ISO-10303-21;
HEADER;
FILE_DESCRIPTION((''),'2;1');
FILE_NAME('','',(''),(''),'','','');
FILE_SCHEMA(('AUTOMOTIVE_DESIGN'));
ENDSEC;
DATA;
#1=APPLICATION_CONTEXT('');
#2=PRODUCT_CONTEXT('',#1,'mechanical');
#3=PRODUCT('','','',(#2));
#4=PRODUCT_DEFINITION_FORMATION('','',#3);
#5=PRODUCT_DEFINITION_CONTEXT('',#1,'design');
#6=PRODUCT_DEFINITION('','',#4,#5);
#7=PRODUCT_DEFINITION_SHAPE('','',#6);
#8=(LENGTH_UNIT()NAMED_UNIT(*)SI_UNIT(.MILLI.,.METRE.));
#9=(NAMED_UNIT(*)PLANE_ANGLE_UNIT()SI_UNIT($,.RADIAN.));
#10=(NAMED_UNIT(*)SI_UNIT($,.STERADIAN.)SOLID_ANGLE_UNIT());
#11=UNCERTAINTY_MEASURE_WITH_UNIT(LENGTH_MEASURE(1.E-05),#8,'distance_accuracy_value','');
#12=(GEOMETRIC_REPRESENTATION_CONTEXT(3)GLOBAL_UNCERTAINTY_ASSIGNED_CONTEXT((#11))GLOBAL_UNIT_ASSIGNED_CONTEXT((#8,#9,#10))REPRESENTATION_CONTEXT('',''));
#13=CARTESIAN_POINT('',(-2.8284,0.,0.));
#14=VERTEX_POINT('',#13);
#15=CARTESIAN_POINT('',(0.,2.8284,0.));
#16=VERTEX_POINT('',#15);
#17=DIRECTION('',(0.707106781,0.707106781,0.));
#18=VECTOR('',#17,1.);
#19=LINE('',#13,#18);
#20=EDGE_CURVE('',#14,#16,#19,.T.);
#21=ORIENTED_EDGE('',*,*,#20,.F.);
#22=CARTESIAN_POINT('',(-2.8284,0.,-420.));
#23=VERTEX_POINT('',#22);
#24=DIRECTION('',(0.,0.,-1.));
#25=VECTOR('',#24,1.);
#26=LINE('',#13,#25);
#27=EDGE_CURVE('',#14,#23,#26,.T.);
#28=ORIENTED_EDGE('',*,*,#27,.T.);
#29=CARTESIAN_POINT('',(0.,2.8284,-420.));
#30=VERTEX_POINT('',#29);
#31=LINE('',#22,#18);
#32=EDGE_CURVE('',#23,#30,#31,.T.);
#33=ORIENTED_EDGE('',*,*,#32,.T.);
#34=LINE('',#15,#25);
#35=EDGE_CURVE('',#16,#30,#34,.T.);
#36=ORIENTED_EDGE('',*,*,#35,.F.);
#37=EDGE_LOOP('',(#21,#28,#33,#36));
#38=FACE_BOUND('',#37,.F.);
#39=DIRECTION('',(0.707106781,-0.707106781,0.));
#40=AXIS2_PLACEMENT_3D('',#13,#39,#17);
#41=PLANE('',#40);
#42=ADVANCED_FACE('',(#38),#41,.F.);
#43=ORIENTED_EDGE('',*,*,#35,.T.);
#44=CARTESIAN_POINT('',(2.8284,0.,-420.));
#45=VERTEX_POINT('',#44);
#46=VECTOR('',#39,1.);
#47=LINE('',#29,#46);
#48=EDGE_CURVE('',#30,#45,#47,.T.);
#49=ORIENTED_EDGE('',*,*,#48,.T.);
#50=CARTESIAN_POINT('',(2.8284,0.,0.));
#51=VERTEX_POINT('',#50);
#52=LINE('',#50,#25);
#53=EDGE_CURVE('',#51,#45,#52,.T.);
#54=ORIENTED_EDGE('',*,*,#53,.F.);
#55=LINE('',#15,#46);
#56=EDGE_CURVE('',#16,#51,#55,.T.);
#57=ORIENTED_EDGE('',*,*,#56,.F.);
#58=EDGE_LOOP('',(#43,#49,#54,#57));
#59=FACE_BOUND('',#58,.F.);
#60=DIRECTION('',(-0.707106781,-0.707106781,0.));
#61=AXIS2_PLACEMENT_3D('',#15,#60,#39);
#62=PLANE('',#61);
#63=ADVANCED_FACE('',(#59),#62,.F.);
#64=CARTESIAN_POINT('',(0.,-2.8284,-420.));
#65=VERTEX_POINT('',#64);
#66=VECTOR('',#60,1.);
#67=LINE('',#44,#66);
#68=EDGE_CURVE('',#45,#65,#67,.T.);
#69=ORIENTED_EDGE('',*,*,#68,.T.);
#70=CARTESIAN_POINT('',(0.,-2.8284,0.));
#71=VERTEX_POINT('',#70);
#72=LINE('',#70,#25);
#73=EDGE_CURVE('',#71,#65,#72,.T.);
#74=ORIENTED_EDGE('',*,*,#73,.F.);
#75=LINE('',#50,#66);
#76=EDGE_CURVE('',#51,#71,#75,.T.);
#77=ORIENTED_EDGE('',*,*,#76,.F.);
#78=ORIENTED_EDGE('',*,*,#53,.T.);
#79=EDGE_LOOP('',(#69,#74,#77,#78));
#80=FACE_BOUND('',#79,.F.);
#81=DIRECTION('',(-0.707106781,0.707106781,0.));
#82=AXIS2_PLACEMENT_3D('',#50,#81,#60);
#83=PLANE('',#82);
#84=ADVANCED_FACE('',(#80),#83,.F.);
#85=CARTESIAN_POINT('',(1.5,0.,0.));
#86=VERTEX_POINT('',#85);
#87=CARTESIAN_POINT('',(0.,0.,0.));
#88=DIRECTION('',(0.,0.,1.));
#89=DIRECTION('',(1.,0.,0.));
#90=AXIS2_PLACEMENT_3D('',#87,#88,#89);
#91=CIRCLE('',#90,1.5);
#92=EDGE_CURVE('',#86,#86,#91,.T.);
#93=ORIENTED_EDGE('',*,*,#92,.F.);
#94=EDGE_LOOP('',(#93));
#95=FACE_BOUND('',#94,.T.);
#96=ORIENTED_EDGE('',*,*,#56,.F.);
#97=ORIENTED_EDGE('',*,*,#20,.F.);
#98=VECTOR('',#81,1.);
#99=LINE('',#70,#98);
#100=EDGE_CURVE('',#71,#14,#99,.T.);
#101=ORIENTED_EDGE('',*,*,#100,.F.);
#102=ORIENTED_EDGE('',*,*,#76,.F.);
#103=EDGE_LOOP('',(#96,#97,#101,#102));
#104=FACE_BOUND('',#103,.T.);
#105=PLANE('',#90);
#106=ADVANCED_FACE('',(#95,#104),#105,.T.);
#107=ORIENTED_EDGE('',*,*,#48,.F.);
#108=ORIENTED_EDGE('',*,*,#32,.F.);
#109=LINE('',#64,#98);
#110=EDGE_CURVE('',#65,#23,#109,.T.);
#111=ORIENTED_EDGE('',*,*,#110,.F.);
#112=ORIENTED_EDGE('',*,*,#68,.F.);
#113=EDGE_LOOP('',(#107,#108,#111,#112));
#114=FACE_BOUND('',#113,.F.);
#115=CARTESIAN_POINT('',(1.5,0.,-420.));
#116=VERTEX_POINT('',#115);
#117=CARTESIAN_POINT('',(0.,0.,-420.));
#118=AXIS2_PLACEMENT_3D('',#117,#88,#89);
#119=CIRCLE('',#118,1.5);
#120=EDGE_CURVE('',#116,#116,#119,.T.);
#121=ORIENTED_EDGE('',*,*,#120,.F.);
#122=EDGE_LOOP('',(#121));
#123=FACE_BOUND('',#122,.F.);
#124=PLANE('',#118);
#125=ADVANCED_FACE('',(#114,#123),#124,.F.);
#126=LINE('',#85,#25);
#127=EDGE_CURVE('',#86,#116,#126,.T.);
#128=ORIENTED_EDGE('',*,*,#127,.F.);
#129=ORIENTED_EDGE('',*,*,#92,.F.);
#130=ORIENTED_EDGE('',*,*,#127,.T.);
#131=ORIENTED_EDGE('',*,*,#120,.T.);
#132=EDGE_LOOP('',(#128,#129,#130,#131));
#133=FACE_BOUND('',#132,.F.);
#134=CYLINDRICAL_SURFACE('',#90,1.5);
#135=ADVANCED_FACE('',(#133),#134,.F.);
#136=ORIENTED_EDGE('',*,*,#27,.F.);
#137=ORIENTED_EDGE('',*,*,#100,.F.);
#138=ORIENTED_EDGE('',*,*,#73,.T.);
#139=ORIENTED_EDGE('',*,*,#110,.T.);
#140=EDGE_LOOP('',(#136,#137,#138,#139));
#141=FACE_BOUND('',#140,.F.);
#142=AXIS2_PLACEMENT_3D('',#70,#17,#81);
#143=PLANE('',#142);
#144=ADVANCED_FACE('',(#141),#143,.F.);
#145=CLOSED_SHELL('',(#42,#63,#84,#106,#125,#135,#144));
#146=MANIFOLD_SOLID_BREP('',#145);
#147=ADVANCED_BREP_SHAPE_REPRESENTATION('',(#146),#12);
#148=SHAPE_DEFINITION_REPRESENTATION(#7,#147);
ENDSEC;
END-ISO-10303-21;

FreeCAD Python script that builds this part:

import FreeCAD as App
import Part
import Sketcher

V = App.Vector


def add_polygon(sketch, points):
    """Adds a closed chain of lines whose ends are joined by coincident constraints."""
    first, n = sketch.GeometryCount, len(points)
    for a, b in zip(points, points[1:] + points[:1]):
        sketch.addGeometry(Part.LineSegment(App.Vector(*a, 0), App.Vector(*b, 0)), False)
    for i in range(n):
        sketch.addConstraint(Sketcher.Constraint("Coincident", first + i, 2, first + (i + 1) % n, 1))

doc = App.newDocument("Part")
body = doc.addObject("PartDesign::Body", "Body")

# Sketch on XY plane
sketch1 = body.newObject("Sketcher::SketchObject", "Sketch")
sketch1.AttachmentSupport = (doc.getObject("XY_Plane"), [""])
sketch1.MapMode = "FlatFace"
add_polygon(sketch1, [(0, 2.8), (-2.8, 0), (0, -2.8), (2.8, 0)])  # lines 0-3
sketch1.addGeometry(Part.Circle(V(0, 0, 0), V(0, 0, 1), 1.5), False)  # 4
sketch1.addConstraint([
    Sketcher.Constraint("Coincident", 4, 3, -1, 1),
    Sketcher.Constraint("Symmetric", 0, 2, 2, 2, -1, 1),
    Sketcher.Constraint("Symmetric", 1, 2, 3, 2, -1, 1),
    Sketcher.Constraint("PointOnObject", 0, 2, -1),
    Sketcher.Constraint("PointOnObject", 1, 2, -2),
    Sketcher.Constraint("Perpendicular", 0, 1),
    Sketcher.Constraint("Diameter", 4, 3.0),
    Sketcher.Constraint("Distance", 0, 4.0),
])
pad1 = body.newObject("PartDesign::Pad", "Pad")
pad1.Profile = sketch1
pad1.Length = 420
pad1.Reversed = True

doc.recompute()
